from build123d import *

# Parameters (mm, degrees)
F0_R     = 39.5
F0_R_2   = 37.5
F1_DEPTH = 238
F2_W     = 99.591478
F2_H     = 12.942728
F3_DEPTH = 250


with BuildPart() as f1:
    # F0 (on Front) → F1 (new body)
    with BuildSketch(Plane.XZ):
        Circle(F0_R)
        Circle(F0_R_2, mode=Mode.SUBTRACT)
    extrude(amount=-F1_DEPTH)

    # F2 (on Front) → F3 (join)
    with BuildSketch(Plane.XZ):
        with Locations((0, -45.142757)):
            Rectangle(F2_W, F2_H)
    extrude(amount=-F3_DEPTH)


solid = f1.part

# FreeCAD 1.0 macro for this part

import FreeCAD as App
import Part
import Sketcher

V = App.Vector


def add_polygon(sketch, points):
    """Adds a closed chain of lines whose ends are joined by coincident constraints."""
    first, n = sketch.GeometryCount, len(points)
    for a, b in zip(points, points[1:] + points[:1]):
        sketch.addGeometry(Part.LineSegment(App.Vector(*a, 0), App.Vector(*b, 0)), False)
    for i in range(n):
        sketch.addConstraint(Sketcher.Constraint("Coincident", first + i, 2, first + (i + 1) % n, 1))

doc = App.newDocument("Part")
body = doc.addObject("PartDesign::Body", "Body")

# Sketch on XZ plane
sketch1 = body.newObject("Sketcher::SketchObject", "Sketch")
sketch1.AttachmentSupport = (doc.getObject("XZ_Plane"), [""])
sketch1.MapMode = "FlatFace"
sketch1.addGeometry([
    Part.Circle(V(0, 0, 0), V(0, 0, 1), 40),
    Part.Circle(V(0, 0, 0), V(0, 0, 1), 38),
], False)
sketch1.addConstraint([
    Sketcher.Constraint("Coincident", 0, 3, -1, 1),
    Sketcher.Constraint("Coincident", 1, 3, -1, 1),
    Sketcher.Constraint("Diameter", 0, 79.0),
    Sketcher.Constraint("Diameter", 1, 75.0),
])
pad1 = body.newObject("PartDesign::Pad", "Pad")
pad1.Profile = sketch1
pad1.Length = 238
pad1.Reversed = True

# Sketch on XZ plane
sketch2 = body.newObject("Sketcher::SketchObject", "Sketch001")
sketch2.AttachmentSupport = (doc.getObject("XZ_Plane"), [""])
sketch2.MapMode = "FlatFace"
add_polygon(sketch2, [(-50, -39), (-50, -52), (50, -52), (50, -39)])  # lines 0-3
sketch2.addConstraint([
    Sketcher.Constraint("Vertical", 0),
    Sketcher.Constraint("Horizontal", 1),
    Sketcher.Constraint("Vertical", 2),
    Sketcher.Constraint("Horizontal", 3),
    Sketcher.Constraint("DistanceX", 1, 1, 1, 2, 99.591478),
    Sketcher.Constraint("DistanceY", 0, 2, 0, 1, 12.942728),
    Sketcher.Constraint("DistanceX", 0, 2, -1, 1, 49.795739),
    Sketcher.Constraint("DistanceY", 0, 2, -1, 1, 51.614121),
])
pad2 = body.newObject("PartDesign::Pad", "Pad001")
pad2.Profile = sketch2
pad2.Length = 250
pad2.Reversed = True

doc.recompute()
